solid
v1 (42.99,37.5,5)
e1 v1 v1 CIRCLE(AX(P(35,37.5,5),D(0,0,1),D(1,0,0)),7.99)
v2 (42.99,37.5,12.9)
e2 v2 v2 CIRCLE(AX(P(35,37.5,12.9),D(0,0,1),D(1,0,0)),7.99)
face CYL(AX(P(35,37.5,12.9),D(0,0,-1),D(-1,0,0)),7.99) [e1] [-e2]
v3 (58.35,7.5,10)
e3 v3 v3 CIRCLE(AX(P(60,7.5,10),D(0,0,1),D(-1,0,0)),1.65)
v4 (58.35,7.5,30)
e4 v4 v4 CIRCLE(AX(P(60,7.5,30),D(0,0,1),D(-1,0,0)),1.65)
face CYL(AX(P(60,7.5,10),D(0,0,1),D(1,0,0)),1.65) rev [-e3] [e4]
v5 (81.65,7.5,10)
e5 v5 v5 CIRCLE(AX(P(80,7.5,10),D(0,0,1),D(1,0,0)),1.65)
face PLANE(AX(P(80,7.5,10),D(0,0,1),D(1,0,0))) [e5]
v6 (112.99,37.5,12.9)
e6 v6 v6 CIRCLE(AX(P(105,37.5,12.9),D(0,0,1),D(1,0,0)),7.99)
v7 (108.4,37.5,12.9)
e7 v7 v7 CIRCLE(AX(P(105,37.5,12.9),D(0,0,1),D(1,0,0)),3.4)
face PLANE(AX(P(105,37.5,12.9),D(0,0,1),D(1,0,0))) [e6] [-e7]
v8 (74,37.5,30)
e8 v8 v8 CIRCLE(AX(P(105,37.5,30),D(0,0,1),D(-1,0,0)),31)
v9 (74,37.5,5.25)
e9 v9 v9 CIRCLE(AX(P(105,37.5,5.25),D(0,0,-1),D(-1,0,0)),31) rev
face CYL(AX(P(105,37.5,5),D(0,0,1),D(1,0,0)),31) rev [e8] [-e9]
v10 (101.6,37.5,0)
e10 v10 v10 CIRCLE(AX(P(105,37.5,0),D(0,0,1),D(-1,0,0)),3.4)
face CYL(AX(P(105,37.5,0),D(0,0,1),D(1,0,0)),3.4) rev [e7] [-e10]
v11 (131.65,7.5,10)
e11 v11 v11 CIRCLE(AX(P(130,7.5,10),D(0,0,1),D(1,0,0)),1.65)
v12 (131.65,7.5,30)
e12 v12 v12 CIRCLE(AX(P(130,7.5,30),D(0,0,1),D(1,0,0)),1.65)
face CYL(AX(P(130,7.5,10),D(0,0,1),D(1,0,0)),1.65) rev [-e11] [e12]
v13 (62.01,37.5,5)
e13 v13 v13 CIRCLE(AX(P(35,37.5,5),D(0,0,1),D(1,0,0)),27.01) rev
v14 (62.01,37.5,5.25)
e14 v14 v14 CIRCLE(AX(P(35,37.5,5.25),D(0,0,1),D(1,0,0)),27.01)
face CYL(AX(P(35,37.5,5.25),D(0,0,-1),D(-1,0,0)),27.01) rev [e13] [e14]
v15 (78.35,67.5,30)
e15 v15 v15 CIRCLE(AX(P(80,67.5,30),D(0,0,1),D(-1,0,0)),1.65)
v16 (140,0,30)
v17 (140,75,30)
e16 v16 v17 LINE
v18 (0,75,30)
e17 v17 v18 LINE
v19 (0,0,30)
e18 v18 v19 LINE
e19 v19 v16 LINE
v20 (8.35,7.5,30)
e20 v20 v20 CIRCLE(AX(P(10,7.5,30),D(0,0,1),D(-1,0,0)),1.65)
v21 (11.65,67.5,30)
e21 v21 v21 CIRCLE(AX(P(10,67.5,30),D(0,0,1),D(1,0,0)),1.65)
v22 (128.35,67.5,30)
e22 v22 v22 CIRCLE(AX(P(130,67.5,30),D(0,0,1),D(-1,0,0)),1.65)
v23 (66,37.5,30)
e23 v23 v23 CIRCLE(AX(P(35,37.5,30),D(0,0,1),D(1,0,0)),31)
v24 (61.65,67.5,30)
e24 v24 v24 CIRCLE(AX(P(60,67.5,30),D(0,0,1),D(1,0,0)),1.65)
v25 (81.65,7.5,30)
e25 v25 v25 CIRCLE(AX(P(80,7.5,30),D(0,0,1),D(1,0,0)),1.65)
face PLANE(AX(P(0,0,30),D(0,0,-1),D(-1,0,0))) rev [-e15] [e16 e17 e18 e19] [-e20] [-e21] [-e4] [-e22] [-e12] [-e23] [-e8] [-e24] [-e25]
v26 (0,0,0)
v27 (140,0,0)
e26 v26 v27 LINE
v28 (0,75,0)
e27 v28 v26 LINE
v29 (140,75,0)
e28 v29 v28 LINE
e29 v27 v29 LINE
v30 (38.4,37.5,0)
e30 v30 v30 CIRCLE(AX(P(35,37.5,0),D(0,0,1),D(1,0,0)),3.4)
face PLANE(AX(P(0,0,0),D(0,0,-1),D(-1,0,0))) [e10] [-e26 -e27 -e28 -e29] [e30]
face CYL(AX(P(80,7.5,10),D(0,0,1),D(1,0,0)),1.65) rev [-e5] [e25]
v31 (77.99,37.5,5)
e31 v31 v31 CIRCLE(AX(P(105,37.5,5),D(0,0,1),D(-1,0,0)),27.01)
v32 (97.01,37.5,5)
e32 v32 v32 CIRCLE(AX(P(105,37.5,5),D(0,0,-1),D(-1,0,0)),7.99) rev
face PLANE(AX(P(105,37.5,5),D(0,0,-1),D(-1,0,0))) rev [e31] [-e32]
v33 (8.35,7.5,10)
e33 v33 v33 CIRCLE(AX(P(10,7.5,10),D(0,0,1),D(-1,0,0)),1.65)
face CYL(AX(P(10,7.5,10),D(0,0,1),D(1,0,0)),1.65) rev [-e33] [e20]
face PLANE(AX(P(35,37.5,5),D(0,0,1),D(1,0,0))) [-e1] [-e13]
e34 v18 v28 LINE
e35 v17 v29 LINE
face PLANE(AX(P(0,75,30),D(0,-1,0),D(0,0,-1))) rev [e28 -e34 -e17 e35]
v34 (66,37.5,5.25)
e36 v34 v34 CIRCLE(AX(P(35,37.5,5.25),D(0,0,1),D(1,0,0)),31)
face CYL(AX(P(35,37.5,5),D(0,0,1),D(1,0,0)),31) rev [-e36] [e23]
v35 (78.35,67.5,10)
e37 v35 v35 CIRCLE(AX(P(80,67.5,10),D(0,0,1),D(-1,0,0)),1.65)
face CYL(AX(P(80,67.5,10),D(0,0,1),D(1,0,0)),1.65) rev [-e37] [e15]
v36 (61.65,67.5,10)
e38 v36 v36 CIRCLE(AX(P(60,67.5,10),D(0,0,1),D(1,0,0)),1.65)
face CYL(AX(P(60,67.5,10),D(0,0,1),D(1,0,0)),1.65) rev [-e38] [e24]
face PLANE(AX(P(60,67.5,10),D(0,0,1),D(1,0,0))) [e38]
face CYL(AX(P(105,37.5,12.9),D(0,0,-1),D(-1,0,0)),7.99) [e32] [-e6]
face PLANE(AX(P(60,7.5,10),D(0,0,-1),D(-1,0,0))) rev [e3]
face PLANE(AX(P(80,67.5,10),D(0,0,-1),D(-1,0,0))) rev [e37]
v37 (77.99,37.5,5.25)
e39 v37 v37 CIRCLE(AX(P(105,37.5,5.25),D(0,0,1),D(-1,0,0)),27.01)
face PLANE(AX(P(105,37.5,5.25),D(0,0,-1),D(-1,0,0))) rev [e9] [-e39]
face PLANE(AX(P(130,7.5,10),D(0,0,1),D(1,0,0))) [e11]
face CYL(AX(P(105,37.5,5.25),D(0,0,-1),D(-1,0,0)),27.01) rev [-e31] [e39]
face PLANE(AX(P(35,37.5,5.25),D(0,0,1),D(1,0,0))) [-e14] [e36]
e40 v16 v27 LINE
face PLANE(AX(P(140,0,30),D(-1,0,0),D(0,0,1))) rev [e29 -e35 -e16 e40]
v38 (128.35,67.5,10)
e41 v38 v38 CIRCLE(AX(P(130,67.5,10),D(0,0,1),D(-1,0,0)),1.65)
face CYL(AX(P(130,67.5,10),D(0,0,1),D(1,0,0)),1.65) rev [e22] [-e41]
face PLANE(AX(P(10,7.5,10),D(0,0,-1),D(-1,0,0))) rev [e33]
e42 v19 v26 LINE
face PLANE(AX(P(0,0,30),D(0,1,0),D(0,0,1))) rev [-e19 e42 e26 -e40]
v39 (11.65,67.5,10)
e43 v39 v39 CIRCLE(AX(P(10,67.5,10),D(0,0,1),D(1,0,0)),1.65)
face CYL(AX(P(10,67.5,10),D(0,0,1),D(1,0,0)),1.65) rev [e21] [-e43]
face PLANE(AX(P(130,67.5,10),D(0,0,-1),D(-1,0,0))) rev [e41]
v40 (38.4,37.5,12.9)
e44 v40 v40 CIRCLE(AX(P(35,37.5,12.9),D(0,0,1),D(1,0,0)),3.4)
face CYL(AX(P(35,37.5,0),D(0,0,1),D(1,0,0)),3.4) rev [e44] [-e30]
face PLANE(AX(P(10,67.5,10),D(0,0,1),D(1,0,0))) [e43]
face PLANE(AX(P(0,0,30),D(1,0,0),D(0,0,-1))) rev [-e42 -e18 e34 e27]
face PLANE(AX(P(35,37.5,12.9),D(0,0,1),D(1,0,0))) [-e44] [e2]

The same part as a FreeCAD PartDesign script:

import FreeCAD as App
import Part
import Sketcher

V = App.Vector


def add_polygon(sketch, points):
    """Adds a closed chain of lines whose ends are joined by coincident constraints."""
    first, n = sketch.GeometryCount, len(points)
    for a, b in zip(points, points[1:] + points[:1]):
        sketch.addGeometry(Part.LineSegment(App.Vector(*a, 0), App.Vector(*b, 0)), False)
    for i in range(n):
        sketch.addConstraint(Sketcher.Constraint("Coincident", first + i, 2, first + (i + 1) % n, 1))

doc = App.newDocument("Part")
body = doc.addObject("PartDesign::Body", "Body")

# Sketch on XY plane
sketch1 = body.newObject("Sketcher::SketchObject", "Sketch")
sketch1.AttachmentSupport = (doc.getObject("XY_Plane"), [""])
sketch1.MapMode = "FlatFace"
add_polygon(sketch1, [(0, 75), (0, 0), (140, 0), (140, 75)])  # lines 0-3
sketch1.addConstraint([
    Sketcher.Constraint("Vertical", 0),
    Sketcher.Constraint("Horizontal", 1),
    Sketcher.Constraint("Vertical", 2),
    Sketcher.Constraint("Horizontal", 3),
    Sketcher.Constraint("Coincident", 0, 2, -1, 1),
    Sketcher.Constraint("DistanceX", 1, 1, 1, 2, 140.0),
    Sketcher.Constraint("DistanceY", 0, 2, 0, 1, 75.0),
])
pad1 = body.newObject("PartDesign::Pad", "Pad")
pad1.Profile = sketch1
pad1.Length = 30

# Sketch on XY plane
sketch2 = body.newObject("Sketcher::SketchObject", "Sketch001")
sketch2.AttachmentSupport = (doc.getObject("XY_Plane"), [""])
sketch2.MapMode = "FlatFace"
sketch2.AttachmentOffset = App.Placement(V(0, 0, 30), App.Rotation())
sketch2.addGeometry([
    Part.Circle(V(35, 37.5, 0), V(0, 0, 1), 31),
    Part.Circle(V(105, 37.5, 0), V(0, 0, 1), 31),
], False)
sketch2.addConstraint([
    Sketcher.Constraint("Equal", 0, 1),
    Sketcher.Constraint("Horizontal", 0, 3, 1, 3),
    Sketcher.Constraint("Diameter", 0, 62.0),
    Sketcher.Constraint("DistanceX", -1, 1, 0, 3, 35.0),
    Sketcher.Constraint("DistanceX", -1, 1, 1, 3, 105.0),
    Sketcher.Constraint("DistanceY", -1, 1, 0, 3, 37.5),
])
pocket1 = body.newObject("PartDesign::Pocket", "Pocket")
pocket1.Profile = sketch2
pocket1.Length = 25

# Sketch on XY plane
sketch3 = body.newObject("Sketcher::SketchObject", "Sketch002")
sketch3.AttachmentSupport = (doc.getObject("XY_Plane"), [""])
sketch3.MapMode = "FlatFace"
sketch3.AttachmentOffset = App.Placement(V(0, 0, 5), App.Rotation())
sketch3.addGeometry([
    Part.Circle(V(35, 37.5, 0), V(0, 0, 1), 3.4),
    Part.Circle(V(105, 37.5, 0), V(0, 0, 1), 3.4),
], False)
sketch3.addConstraint([
    Sketcher.Constraint("Equal", 0, 1),
    Sketcher.Constraint("Horizontal", 0, 3, 1, 3),
    Sketcher.Constraint("Diameter", 0, 6.8),
    Sketcher.Constraint("DistanceX", -1, 1, 0, 3, 35.0),
    Sketcher.Constraint("DistanceX", -1, 1, 1, 3, 105.0),
    Sketcher.Constraint("DistanceY", -1, 1, 0, 3, 37.5),
])
pocket2 = body.newObject("PartDesign::Pocket", "Pocket001")
pocket2.Profile = sketch3
pocket2.Type = "ThroughAll"
pocket2.Midplane = True

# Sketch on XY plane
sketch4 = body.newObject("Sketcher::SketchObject", "Sketch003")
sketch4.AttachmentSupport = (doc.getObject("XY_Plane"), [""])
sketch4.MapMode = "FlatFace"
sketch4.AttachmentOffset = App.Placement(V(0, 0, 5.25), App.Rotation())
sketch4.addGeometry([
    Part.Circle(V(35, 37.5, 0), V(0, 0, 1), 31),
    Part.Circle(V(35, 37.5, 0), V(0, 0, 1), 27.01),
    Part.Circle(V(105, 37.5, 0), V(0, 0, 1), 31),
    Part.Circle(V(105, 37.5, 0), V(0, 0, 1), 27.01),
], False)
sketch4.addConstraint([
    Sketcher.Constraint("Coincident", 1, 3, 0, 3),
    Sketcher.Constraint("Coincident", 3, 3, 2, 3),
    Sketcher.Constraint("Equal", 0, 2),
    Sketcher.Constraint("Equal", 1, 3),
    Sketcher.Constraint("Horizontal", 1, 3, 2, 3),
    Sketcher.Constraint("Diameter", 0, 62.0),
    Sketcher.Constraint("Diameter", 1, 54.02),
    Sketcher.Constraint("DistanceX", -1, 1, 0, 3, 35.0),
    Sketcher.Constraint("DistanceX", -1, 1, 2, 3, 105.0),
    Sketcher.Constraint("DistanceY", -1, 1, 0, 3, 37.5),
])
pad2 = body.newObject("PartDesign::Pad", "Pad001")
pad2.Profile = sketch4
pad2.Length = 0.25
pad2.Reversed = True

# Sketch on XY plane
sketch5 = body.newObject("Sketcher::SketchObject", "Sketch004")
sketch5.AttachmentSupport = (doc.getObject("XY_Plane"), [""])
sketch5.MapMode = "FlatFace"
sketch5.AttachmentOffset = App.Placement(V(0, 0, 12.9), App.Rotation())
sketch5.addGeometry([
    Part.Circle(V(35, 37.5, 0), V(0, 0, 1), 7.99),
    Part.Circle(V(35, 37.5, 0), V(0, 0, 1), 3.4),
    Part.Circle(V(105, 37.5, 0), V(0, 0, 1), 7.99),
    Part.Circle(V(105, 37.5, 0), V(0, 0, 1), 3.4),
], False)
sketch5.addConstraint([
    Sketcher.Constraint("Coincident", 1, 3, 0, 3),
    Sketcher.Constraint("Coincident", 3, 3, 2, 3),
    Sketcher.Constraint("Equal", 0, 2),
    Sketcher.Constraint("Equal", 1, 3),
    Sketcher.Constraint("Horizontal", 1, 3, 2, 3),
    Sketcher.Constraint("Diameter", 1, 6.8),
    Sketcher.Constraint("Diameter", 0, 15.98),
    Sketcher.Constraint("DistanceX", -1, 1, 0, 3, 35.0),
    Sketcher.Constraint("DistanceX", -1, 1, 2, 3, 105.0),
    Sketcher.Constraint("DistanceY", -1, 1, 0, 3, 37.5),
])
pad3 = body.newObject("PartDesign::Pad", "Pad002")
pad3.Profile = sketch5
pad3.Length = 7.9
pad3.Reversed = True

# Sketch on XY plane
sketch6 = body.newObject("Sketcher::SketchObject", "Sketch005")
sketch6.AttachmentSupport = (doc.getObject("XY_Plane"), [""])
sketch6.MapMode = "FlatFace"
sketch6.AttachmentOffset = App.Placement(V(0, 0, 30), App.Rotation())
sketch6.addGeometry([
    Part.Circle(V(60, 67.5, 0), V(0, 0, 1), 1.65),  # 0
    Part.Circle(V(10, 67.5, 0), V(0, 0, 1), 1.65),  # 1
    Part.Circle(V(10, 7.5, 0), V(0, 0, 1), 1.65),  # 2
    Part.Circle(V(60, 7.5, 0), V(0, 0, 1), 1.65),  # 3
    Part.Circle(V(80, 7.5, 0), V(0, 0, 1), 1.65),  # 4
    Part.Circle(V(130, 7.5, 0), V(0, 0, 1), 1.65),  # 5
    Part.Circle(V(130, 67.5, 0), V(0, 0, 1), 1.65),  # 6
    Part.Circle(V(80, 67.5, 0), V(0, 0, 1), 1.65),  # 7
], False)
sketch6.addConstraint([
    Sketcher.Constraint("Equal", 0, 1),
    Sketcher.Constraint("Equal", 1, 2),
    Sketcher.Constraint("Equal", 2, 3),
    Sketcher.Constraint("Equal", 3, 4),
    Sketcher.Constraint("Equal", 4, 5),
    Sketcher.Constraint("Equal", 5, 6),
    Sketcher.Constraint("Equal", 6, 7),
    Sketcher.Constraint("Horizontal", 0, 3, 1, 3),
    Sketcher.Constraint("Horizontal", 2, 3, 3, 3),
    Sketcher.Constraint("Horizontal", 3, 3, 4, 3),
    Sketcher.Constraint("Horizontal", 4, 3, 5, 3),
    Sketcher.Constraint("Horizontal", 1, 3, 6, 3),
    Sketcher.Constraint("Horizontal", 6, 3, 7, 3),
    Sketcher.Constraint("Vertical", 1, 3, 2, 3),
    Sketcher.Constraint("Vertical", 0, 3, 3, 3),
    Sketcher.Constraint("Vertical", 5, 3, 6, 3),
    Sketcher.Constraint("Vertical", 4, 3, 7, 3),
    Sketcher.Constraint("Diameter", 0, 3.3),
    Sketcher.Constraint("DistanceX", -1, 1, 0, 3, 60.0),
    Sketcher.Constraint("DistanceX", -1, 1, 1, 3, 10.0),
    Sketcher.Constraint("DistanceX", -1, 1, 4, 3, 80.0),
    Sketcher.Constraint("DistanceX", -1, 1, 5, 3, 130.0),
    Sketcher.Constraint("DistanceY", 2, 3, 1, 3, 60.0),
    Sketcher.Constraint("DistanceY", -1, 1, 0, 3, 67.5),
])
pocket3 = body.newObject("PartDesign::Pocket", "Pocket002")
pocket3.Profile = sketch6
pocket3.Length = 20

doc.recompute()
